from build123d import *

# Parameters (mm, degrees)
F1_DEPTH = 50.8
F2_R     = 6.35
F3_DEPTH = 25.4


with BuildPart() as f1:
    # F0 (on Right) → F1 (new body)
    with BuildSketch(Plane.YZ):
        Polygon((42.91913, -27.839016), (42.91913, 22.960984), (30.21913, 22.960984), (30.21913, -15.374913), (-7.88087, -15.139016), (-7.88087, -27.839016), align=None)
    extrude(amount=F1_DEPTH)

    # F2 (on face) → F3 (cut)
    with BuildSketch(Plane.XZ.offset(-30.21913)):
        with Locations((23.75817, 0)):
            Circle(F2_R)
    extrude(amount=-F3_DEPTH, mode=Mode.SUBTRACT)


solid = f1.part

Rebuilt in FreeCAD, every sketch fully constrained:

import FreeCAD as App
import Part
import Sketcher
Q = App.Units.Quantity

doc = App.newDocument("Part")
body = doc.addObject("PartDesign::Body", "Body")

# Sketch on YZ plane
sketch1 = body.newObject("Sketcher::SketchObject", "Sketch")
sketch1.AttachmentSupport = (doc.getObject("YZ_Plane"), [""])
sketch1.MapMode = "FlatFace"
sketch1.addGeometry([
    Part.LineSegment(App.Vector(42.91913, -27.839016, 0), App.Vector(42.91913, 22.960984, 0)),  # 0
    Part.LineSegment(App.Vector(42.91913, 22.960984, 0), App.Vector(30.21913, 22.960984, 0)),  # 1
    Part.LineSegment(App.Vector(30.21913, 22.960984, 0), App.Vector(30.21913, -15.374913, 0)),  # 2
    Part.LineSegment(App.Vector(30.21913, -15.374913, 0), App.Vector(-7.88087, -15.139016, 0)),  # 3
    Part.LineSegment(App.Vector(-7.88087, -15.139016, 0), App.Vector(-7.88087, -27.839016, 0)),  # 4
    Part.LineSegment(App.Vector(-7.88087, -27.839016, 0), App.Vector(42.91913, -27.839016, 0)),  # 5
], False)
sketch1.addConstraint([
    Sketcher.Constraint("Coincident", 0, 2, 1, 1),
    Sketcher.Constraint("Coincident", 1, 2, 2, 1),
    Sketcher.Constraint("Coincident", 2, 2, 3, 1),
    Sketcher.Constraint("Coincident", 3, 2, 4, 1),
    Sketcher.Constraint("Coincident", 4, 2, 5, 1),
    Sketcher.Constraint("Coincident", 5, 2, 0, 1),
    Sketcher.Constraint("Vertical", 0),
    Sketcher.Constraint("Horizontal", 1),
    Sketcher.Constraint("Vertical", 2),
    Sketcher.Constraint("Vertical", 4),
    Sketcher.Constraint("Horizontal", 5),
    Sketcher.Constraint("Equal", 5, 0),
    Sketcher.Constraint("Equal", 1, 4),
    Sketcher.Constraint("DistanceX", 5, 1, 5, 2, Q("2 in")),
    Sketcher.Constraint("DistanceX", 1, 2, 1, 1, Q("0.5 in")),
    Sketcher.Constraint("Distance", 3, 38.10073),
    Sketcher.Constraint("DistanceX", -1, 1, 0, 2, 42.91913),
    Sketcher.Constraint("DistanceY", -1, 1, 0, 2, 22.960984),
])
pad1 = body.newObject("PartDesign::Pad", "Pad")
pad1.Profile = sketch1
pad1.Length = Q("2 in")

# Sketch on XZ plane
sketch2 = body.newObject("Sketcher::SketchObject", "Sketch001")
sketch2.AttachmentSupport = (doc.getObject("XZ_Plane"), [""])
sketch2.MapMode = "FlatFace"
sketch2.AttachmentOffset = App.Placement(App.Vector(0, 0, -30.21913), App.Rotation())
sketch2.addGeometry(Part.Circle(App.Vector(24, 0, 0), App.Vector(0, 0, 1), 6), False)
sketch2.addConstraint([
    Sketcher.Constraint("PointOnObject", 0, 3, -1),
    Sketcher.Constraint("Diameter", 0, Q("0.5 in")),
    Sketcher.Constraint("DistanceX", -1, 1, 0, 3, 23.75817),
])
pocket1 = body.newObject("PartDesign::Pocket", "Pocket")
pocket1.Profile = sketch2
pocket1.Length = Q("1 in")

doc.recompute()
